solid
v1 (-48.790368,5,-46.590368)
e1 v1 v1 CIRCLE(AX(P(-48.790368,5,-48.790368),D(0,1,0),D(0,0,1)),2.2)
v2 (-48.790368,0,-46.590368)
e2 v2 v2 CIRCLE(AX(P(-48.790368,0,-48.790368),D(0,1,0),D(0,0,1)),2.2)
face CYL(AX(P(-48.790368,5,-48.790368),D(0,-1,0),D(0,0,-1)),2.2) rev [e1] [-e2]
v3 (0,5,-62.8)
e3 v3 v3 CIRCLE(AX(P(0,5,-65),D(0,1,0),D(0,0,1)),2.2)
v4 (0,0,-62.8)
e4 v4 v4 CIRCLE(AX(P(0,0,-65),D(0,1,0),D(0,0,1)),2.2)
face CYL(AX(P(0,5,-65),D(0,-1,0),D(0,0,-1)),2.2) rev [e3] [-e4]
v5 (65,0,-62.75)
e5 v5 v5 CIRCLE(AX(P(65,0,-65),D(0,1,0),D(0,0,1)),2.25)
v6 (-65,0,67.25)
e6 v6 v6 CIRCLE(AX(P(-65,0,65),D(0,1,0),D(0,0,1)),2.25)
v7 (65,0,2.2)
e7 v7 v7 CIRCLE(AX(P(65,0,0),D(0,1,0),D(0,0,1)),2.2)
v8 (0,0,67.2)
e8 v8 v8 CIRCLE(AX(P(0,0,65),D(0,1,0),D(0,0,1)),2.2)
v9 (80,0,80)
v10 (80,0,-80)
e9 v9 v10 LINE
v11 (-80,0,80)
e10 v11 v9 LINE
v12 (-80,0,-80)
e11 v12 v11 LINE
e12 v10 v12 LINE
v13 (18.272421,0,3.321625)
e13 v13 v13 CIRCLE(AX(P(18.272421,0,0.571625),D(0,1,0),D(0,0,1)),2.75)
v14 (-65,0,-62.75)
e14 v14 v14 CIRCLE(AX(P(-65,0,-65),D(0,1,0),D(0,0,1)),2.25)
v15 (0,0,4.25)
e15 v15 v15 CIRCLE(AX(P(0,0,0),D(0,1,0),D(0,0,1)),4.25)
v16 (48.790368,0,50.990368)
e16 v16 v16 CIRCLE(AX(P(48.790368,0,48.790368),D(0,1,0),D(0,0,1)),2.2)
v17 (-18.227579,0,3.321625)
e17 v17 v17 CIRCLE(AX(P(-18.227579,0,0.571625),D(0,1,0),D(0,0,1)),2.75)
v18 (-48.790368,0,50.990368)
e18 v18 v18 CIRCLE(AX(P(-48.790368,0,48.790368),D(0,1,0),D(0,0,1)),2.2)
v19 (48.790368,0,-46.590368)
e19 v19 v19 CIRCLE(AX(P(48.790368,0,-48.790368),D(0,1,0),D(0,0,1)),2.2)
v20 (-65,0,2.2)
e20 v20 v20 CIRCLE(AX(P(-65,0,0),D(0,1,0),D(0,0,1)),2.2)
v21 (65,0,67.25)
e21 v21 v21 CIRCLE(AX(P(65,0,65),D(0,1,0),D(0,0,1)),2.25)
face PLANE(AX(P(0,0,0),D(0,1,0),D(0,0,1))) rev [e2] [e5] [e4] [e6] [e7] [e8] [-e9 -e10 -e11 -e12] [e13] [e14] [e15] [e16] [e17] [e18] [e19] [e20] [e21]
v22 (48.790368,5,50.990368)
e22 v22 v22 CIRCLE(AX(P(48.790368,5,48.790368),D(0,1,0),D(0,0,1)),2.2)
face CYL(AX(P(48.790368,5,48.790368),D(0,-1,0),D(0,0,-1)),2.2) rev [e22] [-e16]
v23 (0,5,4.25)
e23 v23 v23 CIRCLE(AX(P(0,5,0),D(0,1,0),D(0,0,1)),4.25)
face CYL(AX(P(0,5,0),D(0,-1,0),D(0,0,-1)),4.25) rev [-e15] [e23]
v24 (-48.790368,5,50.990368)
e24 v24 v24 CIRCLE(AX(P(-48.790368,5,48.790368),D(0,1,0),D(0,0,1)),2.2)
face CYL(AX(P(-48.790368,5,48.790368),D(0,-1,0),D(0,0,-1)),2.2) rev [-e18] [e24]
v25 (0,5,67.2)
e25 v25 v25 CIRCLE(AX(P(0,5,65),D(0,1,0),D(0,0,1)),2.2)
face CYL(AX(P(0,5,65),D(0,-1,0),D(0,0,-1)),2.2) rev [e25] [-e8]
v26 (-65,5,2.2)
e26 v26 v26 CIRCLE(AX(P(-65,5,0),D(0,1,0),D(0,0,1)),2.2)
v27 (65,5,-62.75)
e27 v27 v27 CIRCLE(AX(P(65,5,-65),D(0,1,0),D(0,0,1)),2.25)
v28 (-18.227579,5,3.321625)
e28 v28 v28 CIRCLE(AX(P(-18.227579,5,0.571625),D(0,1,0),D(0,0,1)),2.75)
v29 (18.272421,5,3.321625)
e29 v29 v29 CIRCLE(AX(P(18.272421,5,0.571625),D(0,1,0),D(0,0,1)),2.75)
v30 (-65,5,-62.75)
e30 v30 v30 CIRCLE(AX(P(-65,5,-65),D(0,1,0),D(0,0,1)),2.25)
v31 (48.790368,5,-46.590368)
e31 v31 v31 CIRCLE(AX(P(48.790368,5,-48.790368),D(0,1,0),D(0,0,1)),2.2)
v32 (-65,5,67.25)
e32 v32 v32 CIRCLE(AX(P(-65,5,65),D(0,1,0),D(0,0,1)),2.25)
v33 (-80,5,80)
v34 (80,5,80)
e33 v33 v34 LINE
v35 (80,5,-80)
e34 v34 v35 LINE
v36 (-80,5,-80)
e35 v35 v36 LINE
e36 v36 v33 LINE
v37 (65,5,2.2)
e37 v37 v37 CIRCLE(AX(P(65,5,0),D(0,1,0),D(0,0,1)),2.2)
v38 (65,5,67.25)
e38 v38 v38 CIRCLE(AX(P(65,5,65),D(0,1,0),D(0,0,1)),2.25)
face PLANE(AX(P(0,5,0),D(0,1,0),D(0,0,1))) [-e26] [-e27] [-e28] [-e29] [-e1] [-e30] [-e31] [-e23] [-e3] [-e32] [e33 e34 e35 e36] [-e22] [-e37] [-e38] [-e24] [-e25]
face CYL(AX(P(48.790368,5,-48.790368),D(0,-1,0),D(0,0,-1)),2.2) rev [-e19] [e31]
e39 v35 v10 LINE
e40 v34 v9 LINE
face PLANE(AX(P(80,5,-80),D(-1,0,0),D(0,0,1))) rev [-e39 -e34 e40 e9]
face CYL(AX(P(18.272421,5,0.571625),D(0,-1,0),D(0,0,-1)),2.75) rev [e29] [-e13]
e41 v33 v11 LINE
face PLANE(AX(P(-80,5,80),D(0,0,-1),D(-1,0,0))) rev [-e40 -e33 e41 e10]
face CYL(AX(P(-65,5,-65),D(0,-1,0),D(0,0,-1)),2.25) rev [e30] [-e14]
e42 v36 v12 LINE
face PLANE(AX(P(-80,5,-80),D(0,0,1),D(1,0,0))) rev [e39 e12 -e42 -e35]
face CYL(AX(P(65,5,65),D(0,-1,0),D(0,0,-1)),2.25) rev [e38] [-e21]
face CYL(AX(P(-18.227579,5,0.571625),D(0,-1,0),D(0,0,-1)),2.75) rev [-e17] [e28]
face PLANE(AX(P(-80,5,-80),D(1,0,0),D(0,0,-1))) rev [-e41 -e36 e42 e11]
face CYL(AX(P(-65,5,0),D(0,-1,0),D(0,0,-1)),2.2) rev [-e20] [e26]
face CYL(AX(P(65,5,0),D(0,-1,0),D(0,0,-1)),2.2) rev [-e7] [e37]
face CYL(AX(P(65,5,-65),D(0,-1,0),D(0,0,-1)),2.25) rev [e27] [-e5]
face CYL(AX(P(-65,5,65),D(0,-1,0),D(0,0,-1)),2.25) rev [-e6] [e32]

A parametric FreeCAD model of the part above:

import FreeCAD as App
import Part
import Sketcher
from FreeCAD import Vector
Q = App.Units.Quantity

doc = App.newDocument("Part")
body = doc.addObject("PartDesign::Body", "Body")

# Sketch on XZ plane
sketch1 = body.newObject("Sketcher::SketchObject", "Sketch")
sketch1.AttachmentSupport = (doc.getObject("XZ_Plane"), [""])
sketch1.MapMode = "FlatFace"
sketch1.addGeometry([
    Part.LineSegment(Vector(-80, -80, 0), Vector(-80, 80, 0)),  # 0
    Part.LineSegment(Vector(-80, 80, 0), Vector(80, 80, 0)),  # 1
    Part.LineSegment(Vector(80, 80, 0), Vector(80, -80, 0)),  # 2
    Part.LineSegment(Vector(80, -80, 0), Vector(-80, -80, 0)),  # 3
    Part.Circle(Vector(-65, 65, 0), Vector(0, 0, 1), 2.2),  # 4
    Part.Circle(Vector(-48.8, 48.8, 0), Vector(0, 0, 1), 2.2),  # 5
    Part.Circle(Vector(-18.2, 0.6, 0), Vector(0, 0, 1), 2.8),  # 6
    Part.Circle(Vector(0, 65, 0), Vector(0, 0, 1), 2.2),  # 7
    Part.Circle(Vector(65, 65, 0), Vector(0, 0, 1), 2.2),  # 8
    Part.Circle(Vector(48.8, 48.8, 0), Vector(0, 0, 1), 2.2),  # 9
    Part.Circle(Vector(18.3, 0.6, 0), Vector(0, 0, 1), 2.8),  # 10
    Part.Circle(Vector(-65, 0, 0), Vector(0, 0, 1), 2.2),  # 11
    Part.Circle(Vector(-48.8, -48.8, 0), Vector(0, 0, 1), 2.2),  # 12
    Part.Circle(Vector(-65, -65, 0), Vector(0, 0, 1), 2.2),  # 13
    Part.Circle(Vector(0, 0, 0), Vector(0, 0, 1), 4.2),  # 14
    Part.Circle(Vector(65, 0, 0), Vector(0, 0, 1), 2.2),  # 15
    Part.Circle(Vector(0, -65, 0), Vector(0, 0, 1), 2.2),  # 16
    Part.Circle(Vector(48.8, -48.8, 0), Vector(0, 0, 1), 2.2),  # 17
    Part.Circle(Vector(65, -65, 0), Vector(0, 0, 1), 2.2),  # 18
], False)
sketch1.addConstraint([
    Sketcher.Constraint("Coincident", 0, 2, 1, 1),
    Sketcher.Constraint("Coincident", 1, 2, 2, 1),
    Sketcher.Constraint("Coincident", 2, 2, 3, 1),
    Sketcher.Constraint("Coincident", 3, 2, 0, 1),
    Sketcher.Constraint("Vertical", 0),
    Sketcher.Constraint("Horizontal", 1),
    Sketcher.Constraint("Vertical", 2),
    Sketcher.Constraint("Horizontal", 3),
    Sketcher.Constraint("Coincident", 14, 3, -1, 1),
    Sketcher.Constraint("Equal", 5, 7),
    Sketcher.Constraint("Equal", 4, 8),
    Sketcher.Constraint("Equal", 7, 9),
    Sketcher.Constraint("Equal", 6, 10),
    Sketcher.Constraint("Equal", 9, 11),
    Sketcher.Constraint("Equal", 11, 12),
    Sketcher.Constraint("Equal", 8, 13),
    Sketcher.Constraint("Equal", 12, 15),
    Sketcher.Constraint("Equal", 15, 16),
    Sketcher.Constraint("Equal", 16, 17),
    Sketcher.Constraint("Equal", 13, 18),
    Sketcher.Constraint("Symmetric", 9, 3, 12, 3, -1, 1),
    Sketcher.Constraint("Symmetric", 8, 3, 13, 3, -1, 1),
    Sketcher.Constraint("Symmetric", 11, 3, 15, 3, -1, 1),
    Sketcher.Constraint("Symmetric", 7, 3, 16, 3, -1, 1),
    Sketcher.Constraint("Symmetric", 5, 3, 17, 3, -1, 1),
    Sketcher.Constraint("Symmetric", 4, 3, 18, 3, -1, 1),
    Sketcher.Constraint("Symmetric", 0, 2, 2, 2, -1, 1),
    Sketcher.Constraint("Symmetric", 4, 3, 8, 3, -2),
    Sketcher.Constraint("Symmetric", 5, 3, 9, 3, -2),
    Sketcher.Constraint("PointOnObject", 7, 3, -2),
    Sketcher.Constraint("PointOnObject", 11, 3, -1),
    Sketcher.Constraint("Horizontal", 4, 3, 7, 3),
    Sketcher.Constraint("Horizontal", 6, 3, 10, 3),
    Sketcher.Constraint("Vertical", 4, 3, 11, 3),
    Sketcher.Constraint("Equal", 3, 0),
    Sketcher.Constraint("Diameter", 4, Q("4.5 mm")),
    Sketcher.Constraint("Diameter", 5, Q("4.4 mm")),
    Sketcher.Constraint("Diameter", 6, Q("5.5 mm")),
    Sketcher.Constraint("Diameter", 14, Q("8.5 mm")),
    Sketcher.Constraint("DistanceX", 1, 1, 1, 2, Q("160 mm")),
    Sketcher.Constraint("DistanceX", 4, 3, -1, 1, Q("65 mm")),
    Sketcher.Constraint("DistanceY", -1, 1, 4, 3, Q("65 mm")),
    Sketcher.Constraint("DistanceX", 6, 3, 10, 3, Q("36.5 mm")),
    Sketcher.Constraint("DistanceX", 6, 3, -1, 1, Q("18.227579 mm")),
    Sketcher.Constraint("DistanceX", 5, 3, 6, 3, Q("30.562789 mm")),
    Sketcher.Constraint("DistanceY", -1, 1, 5, 3, Q("48.790368 mm")),
    Sketcher.Constraint("DistanceY", -1, 1, 6, 3, Q("0.571625 mm")),
])
pad1 = body.newObject("PartDesign::Pad", "Pad")
pad1.Profile = sketch1
pad1.Length = 5
pad1.Reversed = True

doc.recompute()
